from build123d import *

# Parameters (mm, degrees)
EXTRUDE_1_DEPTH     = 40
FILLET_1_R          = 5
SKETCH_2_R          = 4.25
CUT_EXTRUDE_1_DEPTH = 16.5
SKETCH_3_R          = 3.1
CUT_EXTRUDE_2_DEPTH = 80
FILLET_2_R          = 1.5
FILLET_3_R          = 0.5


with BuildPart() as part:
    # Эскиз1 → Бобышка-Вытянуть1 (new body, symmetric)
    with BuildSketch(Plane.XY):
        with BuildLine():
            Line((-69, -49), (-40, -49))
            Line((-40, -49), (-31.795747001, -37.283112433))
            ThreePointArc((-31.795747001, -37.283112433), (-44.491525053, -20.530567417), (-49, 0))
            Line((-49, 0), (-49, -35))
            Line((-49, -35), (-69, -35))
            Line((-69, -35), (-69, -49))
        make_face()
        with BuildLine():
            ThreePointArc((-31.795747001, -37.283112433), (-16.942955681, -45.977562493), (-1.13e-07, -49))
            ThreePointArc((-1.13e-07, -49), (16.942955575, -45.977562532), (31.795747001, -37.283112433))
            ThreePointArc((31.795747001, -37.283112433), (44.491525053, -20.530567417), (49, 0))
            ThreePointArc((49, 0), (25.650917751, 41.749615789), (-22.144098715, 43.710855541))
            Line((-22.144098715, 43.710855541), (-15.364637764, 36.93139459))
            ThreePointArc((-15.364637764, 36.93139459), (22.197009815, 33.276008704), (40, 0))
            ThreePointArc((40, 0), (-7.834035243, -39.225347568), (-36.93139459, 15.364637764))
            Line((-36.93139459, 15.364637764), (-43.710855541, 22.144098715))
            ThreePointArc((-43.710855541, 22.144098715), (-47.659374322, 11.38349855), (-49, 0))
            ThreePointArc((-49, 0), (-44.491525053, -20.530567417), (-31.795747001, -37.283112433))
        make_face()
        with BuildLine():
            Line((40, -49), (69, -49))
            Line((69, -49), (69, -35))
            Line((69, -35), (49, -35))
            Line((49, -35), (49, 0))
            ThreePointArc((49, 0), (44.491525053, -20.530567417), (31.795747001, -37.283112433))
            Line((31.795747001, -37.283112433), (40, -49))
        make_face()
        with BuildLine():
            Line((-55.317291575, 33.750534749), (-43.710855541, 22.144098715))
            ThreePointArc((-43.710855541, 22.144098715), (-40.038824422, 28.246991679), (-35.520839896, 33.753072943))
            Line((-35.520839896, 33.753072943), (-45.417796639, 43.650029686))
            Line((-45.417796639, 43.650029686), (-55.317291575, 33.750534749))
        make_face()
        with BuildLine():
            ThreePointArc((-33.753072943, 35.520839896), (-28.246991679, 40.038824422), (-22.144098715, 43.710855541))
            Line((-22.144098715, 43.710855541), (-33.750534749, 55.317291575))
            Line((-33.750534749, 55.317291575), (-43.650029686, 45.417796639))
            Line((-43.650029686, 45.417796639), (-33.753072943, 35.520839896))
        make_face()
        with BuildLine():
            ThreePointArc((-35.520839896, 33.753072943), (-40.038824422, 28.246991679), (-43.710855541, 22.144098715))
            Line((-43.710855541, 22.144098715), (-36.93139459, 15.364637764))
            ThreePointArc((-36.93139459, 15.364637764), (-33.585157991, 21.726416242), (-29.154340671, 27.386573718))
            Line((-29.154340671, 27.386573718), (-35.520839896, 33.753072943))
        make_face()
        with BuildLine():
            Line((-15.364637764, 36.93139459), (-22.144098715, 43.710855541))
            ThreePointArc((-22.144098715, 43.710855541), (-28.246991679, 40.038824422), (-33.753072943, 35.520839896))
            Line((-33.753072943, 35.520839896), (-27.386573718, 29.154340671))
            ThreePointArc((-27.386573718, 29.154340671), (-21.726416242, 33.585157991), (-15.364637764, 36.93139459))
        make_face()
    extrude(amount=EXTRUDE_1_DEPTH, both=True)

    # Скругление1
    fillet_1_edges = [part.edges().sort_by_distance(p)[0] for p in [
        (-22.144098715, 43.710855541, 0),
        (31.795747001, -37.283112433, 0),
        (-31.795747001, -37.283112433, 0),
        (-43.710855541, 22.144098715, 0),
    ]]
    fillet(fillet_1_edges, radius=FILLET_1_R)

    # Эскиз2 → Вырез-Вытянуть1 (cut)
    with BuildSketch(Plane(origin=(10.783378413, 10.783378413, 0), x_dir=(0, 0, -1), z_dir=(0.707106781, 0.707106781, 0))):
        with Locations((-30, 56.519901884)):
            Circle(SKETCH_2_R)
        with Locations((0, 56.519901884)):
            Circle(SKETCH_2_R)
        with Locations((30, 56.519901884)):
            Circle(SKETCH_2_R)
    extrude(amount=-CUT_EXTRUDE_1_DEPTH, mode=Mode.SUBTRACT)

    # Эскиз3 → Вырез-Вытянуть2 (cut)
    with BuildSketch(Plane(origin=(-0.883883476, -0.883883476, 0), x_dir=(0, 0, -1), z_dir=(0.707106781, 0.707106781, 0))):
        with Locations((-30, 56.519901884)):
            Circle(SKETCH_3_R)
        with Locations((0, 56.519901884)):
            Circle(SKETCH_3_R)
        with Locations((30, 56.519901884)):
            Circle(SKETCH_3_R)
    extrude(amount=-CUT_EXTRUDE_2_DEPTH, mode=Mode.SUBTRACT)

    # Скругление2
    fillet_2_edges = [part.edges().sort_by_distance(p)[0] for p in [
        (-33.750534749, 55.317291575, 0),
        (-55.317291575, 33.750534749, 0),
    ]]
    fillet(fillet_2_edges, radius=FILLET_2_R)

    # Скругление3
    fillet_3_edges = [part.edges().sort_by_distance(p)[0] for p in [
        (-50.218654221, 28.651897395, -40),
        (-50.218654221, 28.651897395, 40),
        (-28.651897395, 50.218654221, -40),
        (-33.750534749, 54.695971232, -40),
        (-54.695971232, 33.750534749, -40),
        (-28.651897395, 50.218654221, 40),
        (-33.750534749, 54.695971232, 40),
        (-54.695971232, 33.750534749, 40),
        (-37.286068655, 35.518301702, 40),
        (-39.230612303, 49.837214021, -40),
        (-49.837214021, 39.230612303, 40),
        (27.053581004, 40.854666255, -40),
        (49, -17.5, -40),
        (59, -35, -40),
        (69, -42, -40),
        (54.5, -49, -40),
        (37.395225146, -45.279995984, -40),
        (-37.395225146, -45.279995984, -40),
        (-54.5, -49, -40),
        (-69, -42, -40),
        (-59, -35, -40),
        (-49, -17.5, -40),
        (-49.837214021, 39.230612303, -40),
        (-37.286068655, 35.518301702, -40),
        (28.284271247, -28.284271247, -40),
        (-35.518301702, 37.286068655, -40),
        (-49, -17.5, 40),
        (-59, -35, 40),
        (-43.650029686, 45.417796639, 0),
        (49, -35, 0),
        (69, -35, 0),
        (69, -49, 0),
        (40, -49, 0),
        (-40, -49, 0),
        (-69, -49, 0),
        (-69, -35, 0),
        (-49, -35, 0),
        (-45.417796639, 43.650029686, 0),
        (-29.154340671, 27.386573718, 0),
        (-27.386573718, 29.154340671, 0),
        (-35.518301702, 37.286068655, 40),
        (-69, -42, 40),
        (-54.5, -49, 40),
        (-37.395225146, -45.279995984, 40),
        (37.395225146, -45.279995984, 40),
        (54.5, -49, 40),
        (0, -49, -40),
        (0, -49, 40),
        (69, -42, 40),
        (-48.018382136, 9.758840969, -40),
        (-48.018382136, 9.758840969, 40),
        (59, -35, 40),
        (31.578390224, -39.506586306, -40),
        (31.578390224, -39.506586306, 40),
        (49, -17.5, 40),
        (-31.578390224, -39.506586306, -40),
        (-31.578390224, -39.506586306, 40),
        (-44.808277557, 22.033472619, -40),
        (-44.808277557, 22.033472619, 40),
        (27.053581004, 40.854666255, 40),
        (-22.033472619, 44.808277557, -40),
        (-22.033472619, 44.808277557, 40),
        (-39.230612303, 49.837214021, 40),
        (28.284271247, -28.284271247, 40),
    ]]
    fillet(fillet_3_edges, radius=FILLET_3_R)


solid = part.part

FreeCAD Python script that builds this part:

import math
import FreeCAD as App
import Part
import Sketcher
from FreeCAD import Vector
Q = App.Units.Quantity


def edges_at(feature, points):
    """Names of the edges that pass closest to the given points."""
    edges = feature.Shape.Edges
    near = lambda p: min(range(len(edges)), key=lambda i: edges[i].distToShape(Part.Vertex(*p))[0])
    return sorted({f"Edge{near(p) + 1}" for p in points})

doc = App.newDocument("Part")
params = doc.addObject("Spreadsheet::Sheet", "Params")
for row, (alias, value) in enumerate([
    ("sketch1_radius", "49 mm"),
    ("sketch1_radius2", "40 mm"),
    ("sketch1_width", "29 mm"),
    ("sketch1_height", "14 mm"),
    ("sketch1_length", "14 mm"),
    ("pad1_length", "80 mm"),
    ("fillet_radius", "5 mm"),
    ("sketch2_diameter", "8.5 mm"),
    ("pocket1_length", "16.5 mm"),
    ("sketch3_diameter", "6.2 mm"),
    ("pocket2_length", "80 mm"),
    ("fillet2_radius", "1.5 mm"),
    ("fillet3_radius", "0.5 mm"),
], start=1):
    params.set(f"A{row}", alias)
    params.set(f"B{row}", "=" + value)
    params.setAlias(f"B{row}", alias)

body = doc.addObject("PartDesign::Body", "Body")

# Sketch on XY plane
sketch1 = body.newObject("Sketcher::SketchObject", "Sketch")
sketch1.AttachmentSupport = (doc.getObject("XY_Plane"), [""])
sketch1.MapMode = "FlatFace"
sketch1.addGeometry([
    Part.LineSegment(Vector(-69, -49, 0), Vector(-40, -49, 0)),  # 0
    Part.LineSegment(Vector(-40, -49, 0), Vector(-31.795747, -37.283112, 0)),  # 1
    Part.ArcOfCircle(Part.Circle(Vector(0, 0, 0), Vector(0, 0, 1), 49), math.radians(-130.458175), math.radians(-90)),  # 2
    Part.ArcOfCircle(Part.Circle(Vector(0, 0, 0), Vector(0, 0, 1), 49), math.radians(-90), math.radians(-49.541825)),  # 3
    Part.LineSegment(Vector(31.795747, -37.283112, 0), Vector(40, -49, 0)),  # 4
    Part.LineSegment(Vector(40, -49, 0), Vector(69, -49, 0)),  # 5
    Part.LineSegment(Vector(69, -49, 0), Vector(69, -35, 0)),  # 6
    Part.LineSegment(Vector(69, -35, 0), Vector(49, -35, 0)),  # 7
    Part.LineSegment(Vector(49, -35, 0), Vector(49, 0, 0)),  # 8
    Part.ArcOfCircle(Part.Circle(Vector(0, 0, 0), Vector(0, 0, 1), 49), math.radians(0), math.radians(116.866961)),  # 9
    Part.LineSegment(Vector(-22.144099, 43.710856, 0), Vector(-33.750535, 55.317292, 0)),  # 10
    Part.LineSegment(Vector(-33.750535, 55.317292, 0), Vector(-43.65003, 45.417797, 0)),  # 11
    Part.LineSegment(Vector(-43.65003, 45.417797, 0), Vector(-27.386574, 29.154341, 0)),  # 12
    Part.ArcOfCircle(Part.Circle(Vector(0, 0, 0), Vector(0, 0, 1), 40), math.radians(112.588868), math.radians(133.209215)),  # 13
    Part.ArcOfCircle(Part.Circle(Vector(0, 0, 0), Vector(0, 0, 1), 40), math.radians(0), math.radians(112.588868)),  # 14
    Part.ArcOfCircle(Part.Circle(Vector(0, 0, 0), Vector(0, 0, 1), 40), math.radians(157.411132), math.radians(360)),  # 15
    Part.ArcOfCircle(Part.Circle(Vector(0, 0, 0), Vector(0, 0, 1), 40), math.radians(136.790785), math.radians(157.411132)),  # 16
    Part.LineSegment(Vector(-29.154341, 27.386574, 0), Vector(-45.417797, 43.65003, 0)),  # 17
    Part.LineSegment(Vector(-45.417797, 43.65003, 0), Vector(-55.317292, 33.750535, 0)),  # 18
    Part.LineSegment(Vector(-55.317292, 33.750535, 0), Vector(-43.710856, 22.144099, 0)),  # 19
    Part.ArcOfCircle(Part.Circle(Vector(0, 0, 0), Vector(0, 0, 1), 49), math.radians(153.133039), math.radians(180)),  # 20
    Part.LineSegment(Vector(-49, 0, 0), Vector(-49, -35, 0)),  # 21
    Part.LineSegment(Vector(-49, -35, 0), Vector(-69, -35, 0)),  # 22
    Part.LineSegment(Vector(-69, -35, 0), Vector(-69, -49, 0)),  # 23
], False)
sketch1.addConstraint([
    Sketcher.Constraint("Coincident", 0, 2, 1, 1),
    Sketcher.Constraint("Coincident", 1, 2, 2, 1),
    Sketcher.Constraint("Tangent", 2, 2, 3, 1),
    Sketcher.Constraint("Coincident", 3, 2, 4, 1),
    Sketcher.Constraint("Coincident", 4, 2, 5, 1),
    Sketcher.Constraint("Coincident", 5, 2, 6, 1),
    Sketcher.Constraint("Coincident", 6, 2, 7, 1),
    Sketcher.Constraint("Coincident", 7, 2, 8, 1),
    Sketcher.Constraint("Tangent", 8, 2, 9, 1),
    Sketcher.Constraint("Coincident", 9, 2, 10, 1),
    Sketcher.Constraint("Coincident", 10, 2, 11, 1),
    Sketcher.Constraint("Coincident", 11, 2, 12, 1),
    Sketcher.Constraint("Coincident", 12, 2, 13, 2),
    Sketcher.Constraint("Tangent", 13, 1, 14, 2),
    Sketcher.Constraint("Tangent", 14, 1, 15, 2),
    Sketcher.Constraint("Tangent", 15, 1, 16, 2),
    Sketcher.Constraint("Coincident", 16, 1, 17, 1),
    Sketcher.Constraint("Coincident", 17, 2, 18, 1),
    Sketcher.Constraint("Coincident", 18, 2, 19, 1),
    Sketcher.Constraint("Coincident", 19, 2, 20, 1),
    Sketcher.Constraint("Tangent", 20, 2, 21, 1),
    Sketcher.Constraint("Coincident", 21, 2, 22, 1),
    Sketcher.Constraint("Coincident", 22, 2, 23, 1),
    Sketcher.Constraint("Coincident", 23, 2, 0, 1),
    Sketcher.Constraint("Horizontal", 0),
    Sketcher.Constraint("Horizontal", 5),
    Sketcher.Constraint("Vertical", 6),
    Sketcher.Constraint("Horizontal", 7),
    Sketcher.Constraint("Vertical", 8),
    Sketcher.Constraint("Vertical", 21),
    Sketcher.Constraint("Horizontal", 22),
    Sketcher.Constraint("Vertical", 23),
    Sketcher.Constraint("Coincident", 2, 3, -1, 1),
    Sketcher.Constraint("Coincident", 9, 3, -1, 1),
    Sketcher.Constraint("Coincident", 13, 3, -1, 1),
    Sketcher.Constraint("Coincident", 15, 3, -1, 1),
    Sketcher.Constraint("Coincident", 20, 3, -1, 1),
    Sketcher.Constraint("Equal", 2, 3),
    Sketcher.Constraint("Equal", 3, 9),
    Sketcher.Constraint("Equal", 15, 16),
    Sketcher.Constraint("Equal", 9, 20),
    Sketcher.Constraint("Symmetric", 0, 2, 4, 2, -2),
    Sketcher.Constraint("Symmetric", 6, 2, 22, 2, -2),
    Sketcher.Constraint("PointOnObject", 2, 2, -2),
    Sketcher.Constraint("PointOnObject", 14, 1, -1),
    Sketcher.Constraint("Perpendicular", 10, 11),
    Sketcher.Constraint("Perpendicular", 11, 12),
    Sketcher.Constraint("Parallel", 12, 17),
    Sketcher.Constraint("Perpendicular", 17, 18),
    Sketcher.Constraint("Perpendicular", 18, 19),
    Sketcher.Constraint("Horizontal", 0, 2, 2, 2),
    Sketcher.Constraint("Horizontal", 1, 2, 3, 2),
    Sketcher.Constraint("Vertical", 4, 2, 14, 1),
    Sketcher.Constraint("Equal", 12, 17),
    Sketcher.Constraint("Equal", 11, 18),
    Sketcher.Constraint("Equal", 10, 19),
    Sketcher.Constraint("Radius", 2, Q("49 mm")),
    Sketcher.Constraint("Radius", 13, Q("40 mm")),
    Sketcher.Constraint("DistanceX", 0, 1, 0, 2, Q("29 mm")),
    Sketcher.Constraint("DistanceY", 6, 1, 6, 2, Q("14 mm")),
    Sketcher.Constraint("Angle", 1, Q("55 deg")),
    Sketcher.Constraint("Angle", 10, Q("135 deg")),
    Sketcher.Constraint("Distance", 11, Q("14 mm")),
    Sketcher.Constraint("Distance", 12, Q("23 mm")),
    Sketcher.Constraint("DistanceX", 9, 2, -1, 1, Q("22.144099 mm")),
    Sketcher.Constraint("DistanceX", 9, 2, 13, 1, Q("6.779461 mm")),
    Sketcher.Constraint("DistanceX", 15, 1, 12, 2, Q("9.544821 mm")),
])
sketch1.setExpression("Constraints[56]", "Params.sketch1_radius")
sketch1.setExpression("Constraints[57]", "Params.sketch1_radius2")
sketch1.setExpression("Constraints[58]", "Params.sketch1_width")
sketch1.setExpression("Constraints[59]", "Params.sketch1_height")
sketch1.setExpression("Constraints[62]", "Params.sketch1_length")
pad1 = body.newObject("PartDesign::Pad", "Pad")
pad1.Profile = sketch1
pad1.setExpression("Length", "Params.pad1_length")
pad1.Midplane = True
doc.recompute()

fillet = body.newObject("PartDesign::Fillet", "Fillet")
fillet.Base = (pad1, edges_at(pad1, [
    (-22.144, 43.711, 0),
    (31.796, -37.283, 0),
    (-31.796, -37.283, 0),
    (-43.711, 22.144, 0),
]))
fillet.setExpression("Radius", "Params.fillet_radius")

# Sketch on an angled plane
sketch2 = body.newObject("Sketcher::SketchObject", "Sketch001")
sketch2.Placement = App.Placement(Vector(10.783378, 10.783378, 0), App.Rotation(Vector(0, 0, -1), Vector(-0.707106781, 0.707106781, 0), Vector(0.707106781, 0.707106781, 0), "ZXY"))
sketch2.addGeometry([
    Part.Circle(Vector(-30, 56.519902, 0), Vector(0, 0, 1), 4.25),
    Part.Circle(Vector(0, 56.519902, 0), Vector(0, 0, 1), 4.25),
    Part.Circle(Vector(30, 56.519902, 0), Vector(0, 0, 1), 4.25),
], False)
sketch2.addConstraint([
    Sketcher.Constraint("Equal", 0, 1),
    Sketcher.Constraint("Equal", 1, 2),
    Sketcher.Constraint("Symmetric", 0, 3, 2, 3, -2),
    Sketcher.Constraint("PointOnObject", 1, 3, -2),
    Sketcher.Constraint("Horizontal", 0, 3, 1, 3),
    Sketcher.Constraint("Diameter", 0, Q("8.5 mm")),
    Sketcher.Constraint("DistanceX", 0, 3, -1, 1, Q("30 mm")),
    Sketcher.Constraint("DistanceY", -1, 1, 0, 3, Q("56.519902 mm")),
])
sketch2.setExpression("Constraints[5]", "Params.sketch2_diameter")
pocket1 = body.newObject("PartDesign::Pocket", "Pocket")
pocket1.Profile = sketch2
pocket1.setExpression("Length", "Params.pocket1_length")

# Sketch on an angled plane
sketch3 = body.newObject("Sketcher::SketchObject", "Sketch002")
sketch3.Placement = App.Placement(Vector(-0.883883, -0.883883, 0), App.Rotation(Vector(0, 0, -1), Vector(-0.707106781, 0.707106781, 0), Vector(0.707106781, 0.707106781, 0), "ZXY"))
sketch3.addGeometry([
    Part.Circle(Vector(-30, 56.519902, 0), Vector(0, 0, 1), 3.1),
    Part.Circle(Vector(0, 56.519902, 0), Vector(0, 0, 1), 3.1),
    Part.Circle(Vector(30, 56.519902, 0), Vector(0, 0, 1), 3.1),
], False)
sketch3.addConstraint([
    Sketcher.Constraint("Equal", 0, 1),
    Sketcher.Constraint("Equal", 1, 2),
    Sketcher.Constraint("Symmetric", 0, 3, 2, 3, -2),
    Sketcher.Constraint("PointOnObject", 1, 3, -2),
    Sketcher.Constraint("Horizontal", 0, 3, 1, 3),
    Sketcher.Constraint("Diameter", 0, Q("6.2 mm")),
    Sketcher.Constraint("DistanceX", 0, 3, -1, 1, Q("30 mm")),
    Sketcher.Constraint("DistanceY", -1, 1, 0, 3, Q("56.519902 mm")),
])
sketch3.setExpression("Constraints[5]", "Params.sketch3_diameter")
pocket2 = body.newObject("PartDesign::Pocket", "Pocket001")
pocket2.Profile = sketch3
pocket2.setExpression("Length", "Params.pocket2_length")
doc.recompute()

fillet2 = body.newObject("PartDesign::Fillet", "Fillet001")
fillet2.Base = (pocket2, edges_at(pocket2, [(-33.751, 55.317, 0), (-55.317, 33.751, 0)]))
fillet2.setExpression("Radius", "Params.fillet2_radius")
doc.recompute()

fillet3 = body.newObject("PartDesign::Fillet", "Fillet002")
fillet3.Base = (fillet2, edges_at(fillet2, [
    (-50.219, 28.652, -40),
    (-50.219, 28.652, 40),
    (-28.652, 50.219, -40),
    (-33.751, 54.696, -40),
    (-54.696, 33.751, -40),
    (-28.652, 50.219, 40),
    (-33.751, 54.696, 40),
    (-54.696, 33.751, 40),
    (-37.286, 35.518, 40),
    (-39.231, 49.837, -40),
    (-49.837, 39.231, 40),
    (27.054, 40.855, -40),
    (49, -17.5, -40),
    (59, -35, -40),
    (69, -42, -40),
    (54.5, -49, -40),
    (37.395, -45.28, -40),
    (-37.395, -45.28, -40),
    (-54.5, -49, -40),
    (-69, -42, -40),
    (-59, -35, -40),
    (-49, -17.5, -40),
    (-49.837, 39.231, -40),
    (-37.286, 35.518, -40),
    (-7.834, -39.225, -40),
    (-35.518, 37.286, -40),
    (-49, -17.5, 40),
    (-59, -35, 40),
    (-43.65, 45.418, 0),
    (49, -35, 0),
    (69, -35, 0),
    (69, -49, 0),
    (40, -49, 0),
    (-40, -49, 0),
    (-69, -49, 0),
    (-69, -35, 0),
    (-49, -35, 0),
    (-45.418, 43.65, 0),
    (-29.154, 27.387, 0),
    (-27.387, 29.154, 0),
    (-35.518, 37.286, 40),
    (-69, -42, 40),
    (-54.5, -49, 40),
    (-37.395, -45.28, 40),
    (37.395, -45.28, 40),
    (54.5, -49, 40),
    (14.588, -46.778, -40),
    (14.588, -46.778, 40),
    (69, -42, 40),
    (-48.018, 9.759, -40),
    (-48.018, 9.759, 40),
    (59, -35, 40),
    (31.578, -39.507, -40),
    (31.578, -39.507, 40),
    (49, -17.5, 40),
    (-31.578, -39.507, -40),
    (-31.578, -39.507, 40),
    (-44.808, 22.033, -40),
    (-44.808, 22.033, 40),
    (27.054, 40.855, 40),
    (-22.033, 44.808, -40),
    (-22.033, 44.808, 40),
    (-39.231, 49.837, 40),
    (-7.834, -39.225, 40),
]))
fillet3.setExpression("Radius", "Params.fillet3_radius")

doc.recompute()
